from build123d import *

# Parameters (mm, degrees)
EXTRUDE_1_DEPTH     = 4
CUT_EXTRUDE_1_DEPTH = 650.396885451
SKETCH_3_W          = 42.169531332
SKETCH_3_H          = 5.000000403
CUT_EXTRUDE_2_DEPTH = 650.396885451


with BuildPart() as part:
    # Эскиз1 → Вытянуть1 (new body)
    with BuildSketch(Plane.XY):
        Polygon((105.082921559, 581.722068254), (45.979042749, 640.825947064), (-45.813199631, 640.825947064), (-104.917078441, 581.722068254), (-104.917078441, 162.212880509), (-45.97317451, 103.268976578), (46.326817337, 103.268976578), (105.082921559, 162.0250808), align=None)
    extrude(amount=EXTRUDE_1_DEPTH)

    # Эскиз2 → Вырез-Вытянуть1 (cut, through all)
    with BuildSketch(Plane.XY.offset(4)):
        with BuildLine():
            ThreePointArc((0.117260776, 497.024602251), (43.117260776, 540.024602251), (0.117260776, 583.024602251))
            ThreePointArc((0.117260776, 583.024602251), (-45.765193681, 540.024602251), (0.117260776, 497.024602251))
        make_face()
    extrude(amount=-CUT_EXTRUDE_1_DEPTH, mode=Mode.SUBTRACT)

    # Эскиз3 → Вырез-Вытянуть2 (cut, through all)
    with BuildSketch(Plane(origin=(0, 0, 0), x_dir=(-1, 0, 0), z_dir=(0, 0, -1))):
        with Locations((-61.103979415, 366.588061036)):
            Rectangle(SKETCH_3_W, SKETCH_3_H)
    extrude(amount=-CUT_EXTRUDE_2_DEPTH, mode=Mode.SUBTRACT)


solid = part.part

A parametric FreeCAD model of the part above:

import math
import FreeCAD as App
import Part
import Sketcher
Q = App.Units.Quantity


def add_polygon(sketch, points):
    """Adds a closed chain of lines whose ends are joined by coincident constraints."""
    first, n = sketch.GeometryCount, len(points)
    for a, b in zip(points, points[1:] + points[:1]):
        sketch.addGeometry(Part.LineSegment(App.Vector(*a, 0), App.Vector(*b, 0)), False)
    for i in range(n):
        sketch.addConstraint(Sketcher.Constraint("Coincident", first + i, 2, first + (i + 1) % n, 1))

doc = App.newDocument("Part")
body = doc.addObject("PartDesign::Body", "Body")

sketch1 = doc.addObject("Sketcher::SketchObject", "Sketch")
body.addObject(sketch1)
sketch1.AttachmentSupport = (doc.XY_Plane, [""])
sketch1.MapMode = "FlatFace"
add_polygon(sketch1, [(105, 582), (46, 641), (-46, 641), (-105, 582), (-105, 162), (-46, 103), (46, 103), (105, 162)])
sketch1.addConstraint([
    Sketcher.Constraint("Horizontal", 1),
    Sketcher.Constraint("Vertical", 3),
    Sketcher.Constraint("Horizontal", 5),
    Sketcher.Constraint("Vertical", 7),
    Sketcher.Constraint("Perpendicular", 0, 2),
    Sketcher.Constraint("Perpendicular", 2, 4),
    Sketcher.Constraint("Perpendicular", 4, 6),
    Sketcher.Constraint("Horizontal", 2, 2, 7, 2),
    Sketcher.Constraint("Equal", 0, 2),
    Sketcher.Constraint("DistanceX", 3, 2, 6, 2, Q("210 mm")),
    Sketcher.Constraint("DistanceX", 5, 1, 5, 2, Q("92.299992 mm")),
    Sketcher.Constraint("DistanceX", 1, 2, -1, 1, Q("45.8132 mm")),
    Sketcher.Constraint("DistanceY", 6, 2, 3, 2, Q("0.1878 mm")),
    Sketcher.Constraint("DistanceX", 1, 2, 1, 1, Q("91.792242 mm")),
    Sketcher.Constraint("DistanceY", 3, 2, 3, 1, Q("419.509188 mm")),
    Sketcher.Constraint("DistanceY", -1, 1, 2, 2, Q("581.722068 mm")),
])
pad1 = doc.addObject("PartDesign::Pad", "Pad")
body.addObject(pad1)
pad1.Profile = sketch1
pad1.Length = 4

sketch2 = doc.addObject("Sketcher::SketchObject", "Sketch001")
body.addObject(sketch2)
sketch2.AttachmentSupport = (doc.XY_Plane, [""])
sketch2.MapMode = "FlatFace"
sketch2.AttachmentOffset = App.Placement(App.Vector(0, 0, 4), App.Rotation())
sketch2.addGeometry([
    Part.ArcOfCircle(Part.Circle(App.Vector(0, 540, 0), App.Vector(0, 0, 1), 43), math.radians(-90), math.radians(90)),
    Part.ArcOfCircle(Part.Circle(App.Vector(-3, 540, 0), App.Vector(0, 0, 1), 43), math.radians(86), math.radians(274)),
], False)
sketch2.addConstraint([
    Sketcher.Constraint("Coincident", 0, 1, 1, 2),
    Sketcher.Constraint("Coincident", 1, 1, 0, 2),
    Sketcher.Constraint("Horizontal", 0, 3, 1, 3),
    Sketcher.Constraint("Radius", 0, Q("43 mm")),
    Sketcher.Constraint("Radius", 1, Q("43.090542 mm")),
    Sketcher.Constraint("DistanceX", -1, 1, 0, 3, Q("0.117261 mm")),
    Sketcher.Constraint("DistanceX", -1, 1, 0, 1, Q("0.117261 mm")),
    Sketcher.Constraint("DistanceY", -1, 1, 0, 3, Q("540.024602 mm")),
])
pocket1 = doc.addObject("PartDesign::Pocket", "Pocket")
body.addObject(pocket1)
pocket1.Profile = sketch2
pocket1.Type = "ThroughAll"

sketch3 = doc.addObject("Sketcher::SketchObject", "Sketch002")
body.addObject(sketch3)
sketch3.AttachmentSupport = (doc.XY_Plane, [""])
sketch3.MapMode = "FlatFace"
add_polygon(sketch3, [(82, 369), (82, 364), (40, 364), (40, 369)])
sketch3.addConstraint([
    Sketcher.Constraint("Vertical", 0),
    Sketcher.Constraint("Horizontal", 1),
    Sketcher.Constraint("Vertical", 2),
    Sketcher.Constraint("Horizontal", 3),
    Sketcher.Constraint("DistanceY", 0, 2, 0, 1, Q("5 mm")),
    Sketcher.Constraint("DistanceX", 1, 2, 1, 1, Q("42.169531 mm")),
    Sketcher.Constraint("DistanceY", -1, 1, 0, 2, Q("364.088061 mm")),
    Sketcher.Constraint("DistanceX", -1, 1, 0, 2, Q("82.188745 mm")),
])
pocket2 = doc.addObject("PartDesign::Pocket", "Pocket001")
body.addObject(pocket2)
pocket2.Profile = sketch3
pocket2.Type = "ThroughAll"
pocket2.Reversed = True

doc.recompute()
